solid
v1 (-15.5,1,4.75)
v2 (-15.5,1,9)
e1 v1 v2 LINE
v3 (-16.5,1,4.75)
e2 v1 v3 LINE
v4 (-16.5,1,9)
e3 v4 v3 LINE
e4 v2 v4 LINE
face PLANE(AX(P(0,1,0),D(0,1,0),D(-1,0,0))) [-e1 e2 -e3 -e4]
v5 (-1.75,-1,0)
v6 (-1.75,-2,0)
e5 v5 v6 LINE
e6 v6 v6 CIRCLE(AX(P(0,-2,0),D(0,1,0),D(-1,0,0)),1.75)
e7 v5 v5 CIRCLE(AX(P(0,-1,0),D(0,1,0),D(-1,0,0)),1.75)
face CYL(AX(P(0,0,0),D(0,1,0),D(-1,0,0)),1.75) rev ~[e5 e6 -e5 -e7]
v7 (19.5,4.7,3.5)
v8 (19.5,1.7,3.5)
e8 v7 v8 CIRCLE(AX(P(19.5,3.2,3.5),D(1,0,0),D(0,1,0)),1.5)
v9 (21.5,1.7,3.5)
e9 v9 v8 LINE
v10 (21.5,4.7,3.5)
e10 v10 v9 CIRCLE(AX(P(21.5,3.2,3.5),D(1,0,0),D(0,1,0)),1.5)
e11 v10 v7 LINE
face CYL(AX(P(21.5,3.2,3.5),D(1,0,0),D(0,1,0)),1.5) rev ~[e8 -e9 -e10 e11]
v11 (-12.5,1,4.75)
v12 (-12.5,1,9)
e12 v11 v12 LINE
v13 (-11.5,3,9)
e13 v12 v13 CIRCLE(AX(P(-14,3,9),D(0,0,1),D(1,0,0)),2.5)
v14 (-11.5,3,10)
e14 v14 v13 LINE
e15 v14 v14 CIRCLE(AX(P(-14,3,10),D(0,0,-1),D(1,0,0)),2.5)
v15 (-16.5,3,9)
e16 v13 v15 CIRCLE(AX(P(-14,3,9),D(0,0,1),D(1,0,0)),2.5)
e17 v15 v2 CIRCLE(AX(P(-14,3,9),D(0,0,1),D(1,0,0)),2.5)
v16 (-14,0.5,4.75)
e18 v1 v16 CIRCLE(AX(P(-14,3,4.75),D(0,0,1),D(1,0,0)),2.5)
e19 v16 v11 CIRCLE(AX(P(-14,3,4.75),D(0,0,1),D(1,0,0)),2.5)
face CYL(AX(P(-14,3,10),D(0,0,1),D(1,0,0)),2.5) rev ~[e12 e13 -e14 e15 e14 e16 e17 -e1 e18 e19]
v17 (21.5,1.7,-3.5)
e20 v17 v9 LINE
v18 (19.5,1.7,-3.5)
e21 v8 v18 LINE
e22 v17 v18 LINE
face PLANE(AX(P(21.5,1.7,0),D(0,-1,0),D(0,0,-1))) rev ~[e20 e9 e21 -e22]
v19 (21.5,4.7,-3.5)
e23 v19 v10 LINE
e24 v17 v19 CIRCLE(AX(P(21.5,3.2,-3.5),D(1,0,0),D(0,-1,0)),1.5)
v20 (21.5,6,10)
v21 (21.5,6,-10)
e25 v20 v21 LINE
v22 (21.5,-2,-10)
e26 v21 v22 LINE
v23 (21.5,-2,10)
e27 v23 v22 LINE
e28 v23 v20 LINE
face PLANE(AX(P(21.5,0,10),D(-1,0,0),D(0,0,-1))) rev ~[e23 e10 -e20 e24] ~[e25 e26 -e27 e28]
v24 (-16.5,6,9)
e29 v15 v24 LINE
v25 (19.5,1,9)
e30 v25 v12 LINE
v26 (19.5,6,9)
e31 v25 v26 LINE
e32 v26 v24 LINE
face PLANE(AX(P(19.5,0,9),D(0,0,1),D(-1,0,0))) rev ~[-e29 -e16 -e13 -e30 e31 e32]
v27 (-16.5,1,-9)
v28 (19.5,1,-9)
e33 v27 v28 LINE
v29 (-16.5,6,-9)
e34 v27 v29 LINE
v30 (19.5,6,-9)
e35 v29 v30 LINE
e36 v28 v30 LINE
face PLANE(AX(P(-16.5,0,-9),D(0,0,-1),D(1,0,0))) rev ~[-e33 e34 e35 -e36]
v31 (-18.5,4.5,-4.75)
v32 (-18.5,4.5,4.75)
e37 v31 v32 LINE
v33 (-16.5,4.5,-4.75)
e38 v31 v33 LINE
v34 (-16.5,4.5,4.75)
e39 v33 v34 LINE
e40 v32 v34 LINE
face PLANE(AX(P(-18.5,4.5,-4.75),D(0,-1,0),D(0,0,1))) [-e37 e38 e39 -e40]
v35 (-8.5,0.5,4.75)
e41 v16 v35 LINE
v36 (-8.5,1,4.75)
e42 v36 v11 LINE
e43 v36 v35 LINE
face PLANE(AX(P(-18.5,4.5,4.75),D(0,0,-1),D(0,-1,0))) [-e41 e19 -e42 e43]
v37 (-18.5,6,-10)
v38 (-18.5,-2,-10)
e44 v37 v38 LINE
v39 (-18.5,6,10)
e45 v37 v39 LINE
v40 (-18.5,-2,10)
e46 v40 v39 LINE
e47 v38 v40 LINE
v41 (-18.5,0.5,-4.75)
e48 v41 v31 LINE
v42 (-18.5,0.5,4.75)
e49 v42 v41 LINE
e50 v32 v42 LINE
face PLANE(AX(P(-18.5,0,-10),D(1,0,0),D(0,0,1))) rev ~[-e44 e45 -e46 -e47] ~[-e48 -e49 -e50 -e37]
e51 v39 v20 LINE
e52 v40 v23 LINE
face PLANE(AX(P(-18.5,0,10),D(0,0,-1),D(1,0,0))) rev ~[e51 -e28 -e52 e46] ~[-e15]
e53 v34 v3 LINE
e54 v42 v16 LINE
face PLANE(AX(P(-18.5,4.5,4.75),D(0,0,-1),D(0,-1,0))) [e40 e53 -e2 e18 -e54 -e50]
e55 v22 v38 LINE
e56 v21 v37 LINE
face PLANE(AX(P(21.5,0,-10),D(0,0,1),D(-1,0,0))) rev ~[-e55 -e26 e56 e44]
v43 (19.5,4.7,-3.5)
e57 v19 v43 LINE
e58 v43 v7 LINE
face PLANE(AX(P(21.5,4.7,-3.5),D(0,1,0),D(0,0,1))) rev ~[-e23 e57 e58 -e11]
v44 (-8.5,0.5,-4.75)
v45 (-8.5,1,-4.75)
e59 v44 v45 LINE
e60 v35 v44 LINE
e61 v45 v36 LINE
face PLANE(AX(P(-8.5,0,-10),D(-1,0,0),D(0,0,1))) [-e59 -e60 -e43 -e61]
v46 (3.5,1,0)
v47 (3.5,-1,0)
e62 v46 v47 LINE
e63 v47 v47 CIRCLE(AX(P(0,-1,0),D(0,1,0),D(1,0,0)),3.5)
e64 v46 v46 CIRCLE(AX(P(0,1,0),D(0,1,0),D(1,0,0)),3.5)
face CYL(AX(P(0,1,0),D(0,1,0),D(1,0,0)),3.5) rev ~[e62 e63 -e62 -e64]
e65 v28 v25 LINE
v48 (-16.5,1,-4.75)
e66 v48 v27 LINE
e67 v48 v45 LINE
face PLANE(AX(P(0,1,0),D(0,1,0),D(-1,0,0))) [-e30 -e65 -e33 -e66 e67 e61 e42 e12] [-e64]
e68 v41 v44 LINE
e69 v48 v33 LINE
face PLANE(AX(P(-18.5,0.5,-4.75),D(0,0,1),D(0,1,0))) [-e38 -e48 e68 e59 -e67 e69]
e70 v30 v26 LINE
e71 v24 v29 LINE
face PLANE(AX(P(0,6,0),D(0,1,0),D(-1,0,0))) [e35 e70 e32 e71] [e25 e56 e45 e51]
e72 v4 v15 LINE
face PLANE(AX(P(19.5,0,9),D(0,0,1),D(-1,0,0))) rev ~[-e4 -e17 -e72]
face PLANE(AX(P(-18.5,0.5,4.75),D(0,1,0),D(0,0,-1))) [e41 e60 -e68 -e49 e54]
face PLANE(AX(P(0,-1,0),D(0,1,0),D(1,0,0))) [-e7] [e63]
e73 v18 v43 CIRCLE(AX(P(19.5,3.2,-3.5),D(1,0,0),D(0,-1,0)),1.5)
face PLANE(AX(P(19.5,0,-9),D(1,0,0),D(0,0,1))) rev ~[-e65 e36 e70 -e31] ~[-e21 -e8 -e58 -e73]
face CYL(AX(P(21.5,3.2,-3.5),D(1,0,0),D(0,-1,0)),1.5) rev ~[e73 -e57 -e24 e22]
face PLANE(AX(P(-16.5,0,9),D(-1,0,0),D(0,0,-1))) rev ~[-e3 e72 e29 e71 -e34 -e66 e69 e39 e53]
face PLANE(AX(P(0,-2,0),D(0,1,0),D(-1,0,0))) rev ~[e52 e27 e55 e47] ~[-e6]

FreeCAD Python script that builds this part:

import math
import FreeCAD as App
import Part
import Sketcher
from FreeCAD import Vector
Q = App.Units.Quantity

doc = App.newDocument("Part")
body = doc.addObject("PartDesign::Body", "Body")

sketch1 = body.newObject("Sketcher::SketchObject", "Sketch")
sketch1.AttachmentSupport = (doc.getObject("XZ_Plane"), [""])
sketch1.MapMode = "FlatFace"
sketch1.addGeometry([
    Part.LineSegment(Vector(-18, -10, 0), Vector(-18, 10, 0)),
    Part.LineSegment(Vector(-18, 10, 0), Vector(22, 10, 0)),
    Part.LineSegment(Vector(22, 10, 0), Vector(22, -10, 0)),
    Part.LineSegment(Vector(22, -10, 0), Vector(-18, -10, 0)),
    Part.LineSegment(Vector(20, -9, 0), Vector(20, 9, 0)),
    Part.LineSegment(Vector(20, 9, 0), Vector(-16, 9, 0)),
    Part.LineSegment(Vector(-16, 9, 0), Vector(-16, -9, 0)),
    Part.LineSegment(Vector(-16, -9, 0), Vector(20, -9, 0)),
], False)
sketch1.addConstraint([
    Sketcher.Constraint("Coincident", 0, 2, 1, 1),
    Sketcher.Constraint("Coincident", 1, 2, 2, 1),
    Sketcher.Constraint("Coincident", 2, 2, 3, 1),
    Sketcher.Constraint("Coincident", 3, 2, 0, 1),
    Sketcher.Constraint("Coincident", 4, 2, 5, 1),
    Sketcher.Constraint("Coincident", 5, 2, 6, 1),
    Sketcher.Constraint("Coincident", 6, 2, 7, 1),
    Sketcher.Constraint("Coincident", 7, 2, 4, 1),
    Sketcher.Constraint("Vertical", 0),
    Sketcher.Constraint("Horizontal", 1),
    Sketcher.Constraint("Vertical", 2),
    Sketcher.Constraint("Horizontal", 3),
    Sketcher.Constraint("Vertical", 4),
    Sketcher.Constraint("Horizontal", 5),
    Sketcher.Constraint("Vertical", 6),
    Sketcher.Constraint("Horizontal", 7),
    Sketcher.Constraint("DistanceX", 1, 1, 1, 2, Q("40 mm")),
    Sketcher.Constraint("DistanceX", 5, 2, 5, 1, Q("36 mm")),
    Sketcher.Constraint("DistanceY", 0, 1, 0, 2, Q("20 mm")),
    Sketcher.Constraint("DistanceY", 4, 1, 4, 2, Q("18 mm")),
    Sketcher.Constraint("DistanceX", 4, 2, 1, 2, Q("2 mm")),
    Sketcher.Constraint("DistanceX", 5, 2, -1, 1, Q("16.5 mm")),
    Sketcher.Constraint("DistanceY", -1, 1, 0, 2, Q("10 mm")),
    Sketcher.Constraint("DistanceY", -1, 1, 4, 2, Q("9 mm")),
])
pad1 = body.newObject("PartDesign::Pad", "Pad")
pad1.Profile = sketch1
pad1.Length = 6
pad1.Reversed = True

sketch2 = body.newObject("Sketcher::SketchObject", "Sketch001")
sketch2.AttachmentSupport = (doc.getObject("XZ_Plane"), [""])
sketch2.MapMode = "FlatFace"
sketch2.addGeometry([
    Part.LineSegment(Vector(-18.5, -10, 0), Vector(-18.5, 10, 0)),
    Part.LineSegment(Vector(-18.5, 10, 0), Vector(21.5, 10, 0)),
    Part.LineSegment(Vector(21.5, 10, 0), Vector(21.5, -10, 0)),
    Part.LineSegment(Vector(21.5, -10, 0), Vector(-18.5, -10, 0)),
    Part.Circle(Vector(0, 0, 0), Vector(0, 0, 1), 1.8),
], False)
sketch2.addConstraint([
    Sketcher.Constraint("Coincident", 0, 2, 1, 1),
    Sketcher.Constraint("Coincident", 1, 2, 2, 1),
    Sketcher.Constraint("Coincident", 2, 2, 3, 1),
    Sketcher.Constraint("Coincident", 3, 2, 0, 1),
    Sketcher.Constraint("Vertical", 0),
    Sketcher.Constraint("Horizontal", 1),
    Sketcher.Constraint("Vertical", 2),
    Sketcher.Constraint("Horizontal", 3),
    Sketcher.Constraint("Coincident", 4, 3, -1, 1),
    Sketcher.Constraint("Diameter", 4, Q("3.5 mm")),
    Sketcher.Constraint("DistanceX", 1, 1, 1, 2, Q("40 mm")),
    Sketcher.Constraint("DistanceY", 0, 1, 0, 2, Q("20 mm")),
    Sketcher.Constraint("DistanceY", -1, 1, 0, 2, Q("10 mm")),
    Sketcher.Constraint("DistanceX", 0, 2, -1, 1, Q("18.5 mm")),
])
pad2 = body.newObject("PartDesign::Pad", "Pad001")
pad2.Profile = sketch2
pad2.Type = "TwoLengths"
pad2.Length = 1
pad2.Length2 = 2
pad2.Reversed = True

sketch3 = body.newObject("Sketcher::SketchObject", "Sketch002")
sketch3.AttachmentSupport = (doc.getObject("YZ_Plane"), [""])
sketch3.MapMode = "FlatFace"
sketch3.AttachmentOffset = App.Placement(Vector(0, 0, 21.5), App.Rotation())
sketch3.addGeometry([
    Part.ArcOfCircle(Part.Circle(Vector(3.2, 3.5, 0), Vector(0, 0, 1), 1.5), math.radians(0), math.radians(180)),
    Part.LineSegment(Vector(1.7, 3.5, 0), Vector(1.7, -3.5, 0)),
    Part.ArcOfCircle(Part.Circle(Vector(3.2, -3.5, 0), Vector(0, 0, 1), 1.5), math.radians(180), math.radians(360)),
    Part.LineSegment(Vector(4.7, -3.5, 0), Vector(4.7, 3.5, 0)),
], False)
sketch3.addConstraint([
    Sketcher.Constraint("Tangent", 0, 2, 1, 1),
    Sketcher.Constraint("Tangent", 1, 2, 2, 1),
    Sketcher.Constraint("Tangent", 2, 2, 3, 1),
    Sketcher.Constraint("Tangent", 3, 2, 0, 1),
    Sketcher.Constraint("Vertical", 1),
    Sketcher.Constraint("Vertical", 3),
    Sketcher.Constraint("Radius", 0, Q("1.5 mm")),
    Sketcher.Constraint("DistanceX", -1, 1, 0, 3, Q("3.2 mm")),
    Sketcher.Constraint("DistanceY", -1, 1, 0, 3, Q("3.5 mm")),
    Sketcher.Constraint("DistanceY", 2, 3, -1, 1, Q("3.5 mm")),
])
pocket1 = body.newObject("PartDesign::Pocket", "Pocket")
pocket1.Profile = sketch3
pocket1.Length = 10

sketch4 = body.newObject("Sketcher::SketchObject", "Sketch003")
sketch4.AttachmentSupport = (doc.getObject("YZ_Plane"), [""])
sketch4.MapMode = "FlatFace"
sketch4.AttachmentOffset = App.Placement(Vector(0, 0, -18.5), App.Rotation())
sketch4.addGeometry([
    Part.LineSegment(Vector(4.5, 4.8, 0), Vector(4.5, -4.8, 0)),
    Part.LineSegment(Vector(4.5, -4.8, 0), Vector(0.5, -4.8, 0)),
    Part.LineSegment(Vector(0.5, -4.8, 0), Vector(0.5, 4.8, 0)),
    Part.LineSegment(Vector(0.5, 4.8, 0), Vector(4.5, 4.8, 0)),
], False)
sketch4.addConstraint([
    Sketcher.Constraint("Coincident", 0, 2, 1, 1),
    Sketcher.Constraint("Coincident", 1, 2, 2, 1),
    Sketcher.Constraint("Coincident", 2, 2, 3, 1),
    Sketcher.Constraint("Coincident", 3, 2, 0, 1),
    Sketcher.Constraint("Vertical", 0),
    Sketcher.Constraint("Horizontal", 1),
    Sketcher.Constraint("Vertical", 2),
    Sketcher.Constraint("Horizontal", 3),
    Sketcher.Constraint("DistanceX", 1, 2, 1, 1, Q("4 mm")),
    Sketcher.Constraint("DistanceY", 0, 2, 0, 1, Q("9.5 mm")),
    Sketcher.Constraint("DistanceX", -1, 1, 0, 2, Q("4.5 mm")),
    Sketcher.Constraint("DistanceY", 0, 2, -1, 1, Q("4.75 mm")),
])
pocket2 = body.newObject("PartDesign::Pocket", "Pocket001")
pocket2.Profile = sketch4
pocket2.Length = 10
pocket2.Reversed = True

sketch5 = body.newObject("Sketcher::SketchObject", "Sketch004")
sketch5.AttachmentSupport = (doc.getObject("XZ_Plane"), [""])
sketch5.MapMode = "FlatFace"
sketch5.AttachmentOffset = App.Placement(Vector(0, 0, -1), App.Rotation())
sketch5.addGeometry([
    Part.Circle(Vector(0, 0, 0), Vector(0, 0, 1), 3.5),
    Part.Circle(Vector(0, 0, 0), Vector(0, 0, 1), 1.8),
], False)
sketch5.addConstraint([
    Sketcher.Constraint("Coincident", 0, 3, -1, 1),
    Sketcher.Constraint("Coincident", 1, 3, -1, 1),
    Sketcher.Constraint("Diameter", 0, Q("7 mm")),
    Sketcher.Constraint("Diameter", 1, Q("3.5 mm")),
])
pocket3 = body.newObject("PartDesign::Pocket", "Pocket002")
pocket3.Profile = sketch5
pocket3.Length = 2
pocket3.Reversed = True

sketch6 = body.newObject("Sketcher::SketchObject", "Sketch005")
sketch6.AttachmentSupport = (doc.getObject("XY_Plane"), [""])
sketch6.MapMode = "FlatFace"
sketch6.AttachmentOffset = App.Placement(Vector(0, 0, 10), App.Rotation())
sketch6.addGeometry(Part.Circle(Vector(-14, 3, 0), Vector(0, 0, 1), 2.5), False)
sketch6.addConstraint([
    Sketcher.Constraint("Diameter", 0, Q("5 mm")),
    Sketcher.Constraint("DistanceX", 0, 3, -1, 1, Q("14 mm")),
    Sketcher.Constraint("DistanceY", -1, 1, 0, 3, Q("3 mm")),
])
pocket4 = body.newObject("PartDesign::Pocket", "Pocket003")
pocket4.Profile = sketch6
pocket4.Length = 10

doc.recompute()
